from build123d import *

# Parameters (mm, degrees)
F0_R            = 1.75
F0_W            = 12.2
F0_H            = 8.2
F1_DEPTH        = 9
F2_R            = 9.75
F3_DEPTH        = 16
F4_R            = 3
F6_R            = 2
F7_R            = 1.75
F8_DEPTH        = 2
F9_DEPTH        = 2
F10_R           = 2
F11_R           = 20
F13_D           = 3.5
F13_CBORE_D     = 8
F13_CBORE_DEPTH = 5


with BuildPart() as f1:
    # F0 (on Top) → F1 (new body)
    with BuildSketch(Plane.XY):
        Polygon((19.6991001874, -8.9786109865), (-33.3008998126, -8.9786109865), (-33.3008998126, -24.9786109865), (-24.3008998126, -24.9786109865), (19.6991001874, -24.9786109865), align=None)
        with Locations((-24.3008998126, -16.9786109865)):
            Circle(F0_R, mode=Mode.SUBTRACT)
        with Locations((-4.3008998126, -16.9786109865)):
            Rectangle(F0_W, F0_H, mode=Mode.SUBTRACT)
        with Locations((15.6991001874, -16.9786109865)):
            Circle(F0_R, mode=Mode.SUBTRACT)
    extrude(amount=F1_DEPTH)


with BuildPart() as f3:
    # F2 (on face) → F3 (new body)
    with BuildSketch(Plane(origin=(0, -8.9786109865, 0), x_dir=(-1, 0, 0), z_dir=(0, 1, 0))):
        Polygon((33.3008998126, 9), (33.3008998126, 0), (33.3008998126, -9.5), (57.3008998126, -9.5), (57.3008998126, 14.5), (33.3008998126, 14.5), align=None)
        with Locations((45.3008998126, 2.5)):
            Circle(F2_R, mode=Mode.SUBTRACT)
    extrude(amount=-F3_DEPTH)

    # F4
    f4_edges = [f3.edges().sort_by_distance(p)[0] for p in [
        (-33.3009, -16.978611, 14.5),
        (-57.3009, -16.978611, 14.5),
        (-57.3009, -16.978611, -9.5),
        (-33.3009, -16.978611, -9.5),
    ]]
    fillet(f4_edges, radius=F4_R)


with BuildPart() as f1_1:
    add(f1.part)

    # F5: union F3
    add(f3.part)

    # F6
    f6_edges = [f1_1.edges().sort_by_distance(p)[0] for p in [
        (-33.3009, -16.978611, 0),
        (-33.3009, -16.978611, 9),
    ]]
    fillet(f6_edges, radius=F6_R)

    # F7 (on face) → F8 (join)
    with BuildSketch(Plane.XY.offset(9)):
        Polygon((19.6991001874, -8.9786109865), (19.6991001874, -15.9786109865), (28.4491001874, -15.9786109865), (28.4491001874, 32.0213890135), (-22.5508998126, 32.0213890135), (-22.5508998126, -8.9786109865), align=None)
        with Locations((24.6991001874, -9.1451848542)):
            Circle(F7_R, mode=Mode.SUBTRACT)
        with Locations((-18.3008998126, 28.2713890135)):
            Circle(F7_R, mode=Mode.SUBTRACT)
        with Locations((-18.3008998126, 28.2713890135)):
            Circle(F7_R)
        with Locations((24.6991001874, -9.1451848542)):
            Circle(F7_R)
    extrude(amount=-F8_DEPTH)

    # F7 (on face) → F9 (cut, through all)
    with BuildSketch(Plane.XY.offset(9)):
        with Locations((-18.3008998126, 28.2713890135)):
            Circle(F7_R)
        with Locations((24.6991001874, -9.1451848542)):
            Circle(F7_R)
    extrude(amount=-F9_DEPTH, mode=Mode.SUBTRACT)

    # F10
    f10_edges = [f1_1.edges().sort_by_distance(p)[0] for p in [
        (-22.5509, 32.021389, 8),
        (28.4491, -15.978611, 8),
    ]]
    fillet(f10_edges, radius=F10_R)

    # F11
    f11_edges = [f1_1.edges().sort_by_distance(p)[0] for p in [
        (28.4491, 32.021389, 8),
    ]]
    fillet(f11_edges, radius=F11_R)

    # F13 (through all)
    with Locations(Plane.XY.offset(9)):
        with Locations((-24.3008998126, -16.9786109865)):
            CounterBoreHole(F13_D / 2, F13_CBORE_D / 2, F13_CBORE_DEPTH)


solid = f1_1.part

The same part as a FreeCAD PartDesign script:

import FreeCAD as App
import Part
import Sketcher


def edges_at(feature, points):
    """Names of the edges that pass closest to the given points."""
    edges = feature.Shape.Edges
    near = lambda p: min(range(len(edges)), key=lambda i: edges[i].distToShape(Part.Vertex(*p))[0])
    return sorted({f"Edge{near(p) + 1}" for p in points})

doc = App.newDocument("Part")
params = doc.addObject("Spreadsheet::Sheet", "Params")
for row, (alias, value) in enumerate([
    ("sketch1_diameter", "3.5 mm"),
    ("sketch1_width", "53 mm"),
    ("sketch1_height", "16 mm"),
    ("sketch1_width2", "12.2 mm"),
    ("sketch1_height2", "8.2 mm"),
    ("pad1_length", "9 mm"),
    ("sketch2_diameter", "19.5 mm"),
    ("sketch2_width", "24 mm"),
    ("pad2_length", "16 mm"),
    ("fillet_radius", "3 mm"),
    ("fillet2_radius", "2 mm"),
    ("sketch3_width", "51 mm"),
    ("sketch3_height", "7 mm"),
    ("sketch3_height2", "48 mm"),
    ("sketch3_width2", "8.75 mm"),
    ("pad3_length", "2 mm"),
    ("sketch4_diameter", "3.5 mm"),
    ("fillet3_radius", "2 mm"),
    ("fillet4_radius", "20 mm"),
    ("sketch5_diameter", "3.5 mm"),
    ("hole_diameter", "3.5 mm"),
    ("hole_cbore_diameter", "8 mm"),
    ("hole_cbore_depth", "5 mm"),
], start=1):
    params.set(f"A{row}", alias)
    params.set(f"B{row}", "=" + value)
    params.setAlias(f"B{row}", alias)

body = doc.addObject("PartDesign::Body", "Body")

sketch1 = body.newObject("Sketcher::SketchObject", "Sketch")
sketch1.AttachmentSupport = (doc.getObject("XY_Plane"), [""])
sketch1.MapMode = "FlatFace"
sketch1.addGeometry([
    Part.LineSegment(App.Vector(19.6991, -8.978611, 0), App.Vector(-33.3009, -8.978611, 0)),
    Part.LineSegment(App.Vector(-33.3009, -8.978611, 0), App.Vector(-33.3009, -24.978611, 0)),
    Part.LineSegment(App.Vector(-33.3009, -24.978611, 0), App.Vector(19.6991, -24.978611, 0)),
    Part.LineSegment(App.Vector(19.6991, -24.978611, 0), App.Vector(19.6991, -8.978611, 0)),
    Part.Circle(App.Vector(-24.3009, -16.978611, 0), App.Vector(0, 0, 1), 1.75),
    Part.LineSegment(App.Vector(1.7991, -21.078611, 0), App.Vector(-10.4009, -21.078611, 0)),
    Part.LineSegment(App.Vector(-10.4009, -21.078611, 0), App.Vector(-10.4009, -12.878611, 0)),
    Part.LineSegment(App.Vector(-10.4009, -12.878611, 0), App.Vector(1.7991, -12.878611, 0)),
    Part.LineSegment(App.Vector(1.7991, -12.878611, 0), App.Vector(1.7991, -21.078611, 0)),
    Part.Circle(App.Vector(15.6991, -16.978611, 0), App.Vector(0, 0, 1), 1.75),
], False)
sketch1.addConstraint([
    Sketcher.Constraint("Coincident", 0, 2, 1, 1),
    Sketcher.Constraint("Coincident", 1, 2, 2, 1),
    Sketcher.Constraint("Coincident", 2, 2, 3, 1),
    Sketcher.Constraint("Coincident", 3, 2, 0, 1),
    Sketcher.Constraint("Coincident", 5, 2, 6, 1),
    Sketcher.Constraint("Coincident", 6, 2, 7, 1),
    Sketcher.Constraint("Coincident", 7, 2, 8, 1),
    Sketcher.Constraint("Coincident", 8, 2, 5, 1),
    Sketcher.Constraint("Horizontal", 0),
    Sketcher.Constraint("Vertical", 1),
    Sketcher.Constraint("Horizontal", 2),
    Sketcher.Constraint("Vertical", 3),
    Sketcher.Constraint("Horizontal", 5),
    Sketcher.Constraint("Vertical", 6),
    Sketcher.Constraint("Horizontal", 7),
    Sketcher.Constraint("Vertical", 8),
    Sketcher.Constraint("Equal", 4, 9),
    Sketcher.Constraint("Horizontal", 4, 3, 9, 3),
    Sketcher.Constraint("Diameter", 4, 3.5),
    Sketcher.Constraint("DistanceX", 0, 2, 0, 1, 53.0),
    Sketcher.Constraint("DistanceY", 1, 2, 1, 1, 16.0),
    Sketcher.Constraint("DistanceX", 5, 2, 5, 1, 12.2),
    Sketcher.Constraint("DistanceY", 6, 1, 6, 2, 8.2),
    Sketcher.Constraint("DistanceX", 4, 3, 9, 3, 40.0),
    Sketcher.Constraint("DistanceX", 0, 2, 4, 3, 9.0),
    Sketcher.Constraint("DistanceY", 4, 3, 0, 2, 8.0),
    Sketcher.Constraint("DistanceX", 4, 3, 5, 2, 13.9),
    Sketcher.Constraint("DistanceY", 5, 2, 4, 3, 4.1),
    Sketcher.Constraint("DistanceX", 4, 3, -1, 1, 24.3009),
    Sketcher.Constraint("DistanceY", 4, 3, -1, 1, 16.978611),
])
sketch1.setExpression("Constraints[18]", "Params.sketch1_diameter")
sketch1.setExpression("Constraints[19]", "Params.sketch1_width")
sketch1.setExpression("Constraints[20]", "Params.sketch1_height")
sketch1.setExpression("Constraints[21]", "Params.sketch1_width2")
sketch1.setExpression("Constraints[22]", "Params.sketch1_height2")
pad1 = body.newObject("PartDesign::Pad", "Pad")
pad1.Profile = sketch1
pad1.setExpression("Length", "Params.pad1_length")
body2 = doc.addObject("PartDesign::Body", "Body001")

sketch2 = body2.newObject("Sketcher::SketchObject", "Sketch001")
sketch2.AttachmentSupport = (doc.getObject("XZ_Plane001"), [""])
sketch2.MapMode = "FlatFace"
sketch2.AttachmentOffset = App.Placement(App.Vector(0, 0, 8.978611), App.Rotation())
sketch2.addGeometry([
    Part.LineSegment(App.Vector(-33.3009, -9.5, 0), App.Vector(-57.3009, -9.5, 0)),
    Part.LineSegment(App.Vector(-57.3009, -9.5, 0), App.Vector(-57.3009, 14.5, 0)),
    Part.LineSegment(App.Vector(-57.3009, 14.5, 0), App.Vector(-33.3009, 14.5, 0)),
    Part.LineSegment(App.Vector(-33.3009, 14.5, 0), App.Vector(-33.3009, -9.5, 0)),
    Part.Circle(App.Vector(-45.3009, 2.5, 0), App.Vector(0, 0, 1), 9.75),
], False)
sketch2.addConstraint([
    Sketcher.Constraint("Coincident", 0, 2, 1, 1),
    Sketcher.Constraint("Coincident", 1, 2, 2, 1),
    Sketcher.Constraint("Coincident", 2, 2, 3, 1),
    Sketcher.Constraint("Coincident", 3, 2, 0, 1),
    Sketcher.Constraint("Horizontal", 0),
    Sketcher.Constraint("Vertical", 1),
    Sketcher.Constraint("Horizontal", 2),
    Sketcher.Constraint("Vertical", 3),
    Sketcher.Constraint("Equal", 2, 1),
    Sketcher.Constraint("Diameter", 4, 19.5),
    Sketcher.Constraint("DistanceX", 0, 2, 0, 1, 24.0),
    Sketcher.Constraint("DistanceX", 0, 2, 4, 3, 12.0),
    Sketcher.Constraint("DistanceY", 0, 2, 4, 3, 12.0),
    Sketcher.Constraint("DistanceY", -1, 1, 4, 3, 2.5),
    Sketcher.Constraint("DistanceX", 4, 3, -1, 1, 45.3009),
])
sketch2.setExpression("Constraints[9]", "Params.sketch2_diameter")
sketch2.setExpression("Constraints[10]", "Params.sketch2_width")
pad2 = body2.newObject("PartDesign::Pad", "Pad001")
pad2.Profile = sketch2
pad2.setExpression("Length", "Params.pad2_length")
doc.recompute()

fillet = body2.newObject("PartDesign::Fillet", "Fillet")
fillet.Base = (pad2, edges_at(pad2, [
    (-33.301, -16.979, 14.5),
    (-57.301, -16.979, 14.5),
    (-57.301, -16.979, -9.5),
    (-33.301, -16.979, -9.5),
]))
fillet.setExpression("Radius", "Params.fillet_radius")
doc.recompute()

boolean = body.newObject("PartDesign::Boolean", "Boolean")
boolean.Type = "Fuse"
boolean.addObjects([body2])
doc.recompute()

fillet2 = body.newObject("PartDesign::Fillet", "Fillet001")
fillet2.Base = (boolean, edges_at(boolean, [(-33.301, -16.979, 0), (-33.301, -16.979, 9)]))
fillet2.setExpression("Radius", "Params.fillet2_radius")

sketch3 = body.newObject("Sketcher::SketchObject", "Sketch002")
sketch3.AttachmentSupport = (doc.getObject("XY_Plane"), [""])
sketch3.MapMode = "FlatFace"
sketch3.AttachmentOffset = App.Placement(App.Vector(0, 0, 9), App.Rotation())
sketch3.addGeometry([
    Part.LineSegment(App.Vector(19.6991, -8.978611, 0), App.Vector(19.6991, -15.978611, 0)),
    Part.LineSegment(App.Vector(19.6991, -15.978611, 0), App.Vector(28.4491, -15.978611, 0)),
    Part.LineSegment(App.Vector(28.4491, -15.978611, 0), App.Vector(28.4491, 32.021389, 0)),
    Part.LineSegment(App.Vector(28.4491, 32.021389, 0), App.Vector(-22.5509, 32.021389, 0)),
    Part.LineSegment(App.Vector(-22.5509, 32.021389, 0), App.Vector(-22.5509, -8.978611, 0)),
    Part.LineSegment(App.Vector(-22.5509, -8.978611, 0), App.Vector(19.6991, -8.978611, 0)),
], False)
sketch3.addConstraint([
    Sketcher.Constraint("Coincident", 0, 2, 1, 1),
    Sketcher.Constraint("Coincident", 1, 2, 2, 1),
    Sketcher.Constraint("Coincident", 2, 2, 3, 1),
    Sketcher.Constraint("Coincident", 3, 2, 4, 1),
    Sketcher.Constraint("Coincident", 4, 2, 5, 1),
    Sketcher.Constraint("Coincident", 5, 2, 0, 1),
    Sketcher.Constraint("Vertical", 0),
    Sketcher.Constraint("Horizontal", 1),
    Sketcher.Constraint("Vertical", 2),
    Sketcher.Constraint("Horizontal", 3),
    Sketcher.Constraint("Vertical", 4),
    Sketcher.Constraint("Horizontal", 5),
    Sketcher.Constraint("DistanceX", 3, 2, 3, 1, 51.0),
    Sketcher.Constraint("DistanceY", 0, 2, 0, 1, 7.0),
    Sketcher.Constraint("DistanceY", 2, 1, 2, 2, 48.0),
    Sketcher.Constraint("DistanceX", 1, 1, 1, 2, 8.75),
    Sketcher.Constraint("DistanceX", -1, 1, 0, 2, 19.6991),
    Sketcher.Constraint("DistanceY", 0, 2, -1, 1, 15.978611),
])
sketch3.setExpression("Constraints[12]", "Params.sketch3_width")
sketch3.setExpression("Constraints[13]", "Params.sketch3_height")
sketch3.setExpression("Constraints[14]", "Params.sketch3_height2")
sketch3.setExpression("Constraints[15]", "Params.sketch3_width2")
pad3 = body.newObject("PartDesign::Pad", "Pad002")
pad3.Profile = sketch3
pad3.setExpression("Length", "Params.pad3_length")
pad3.Reversed = True

sketch4 = body.newObject("Sketcher::SketchObject", "Sketch003")
sketch4.AttachmentSupport = (doc.getObject("XY_Plane"), [""])
sketch4.MapMode = "FlatFace"
sketch4.AttachmentOffset = App.Placement(App.Vector(0, 0, 9), App.Rotation())
sketch4.addGeometry([
    Part.Circle(App.Vector(-18.3009, 28.271389, 0), App.Vector(0, 0, 1), 1.75),
    Part.Circle(App.Vector(24.6991, -9.145185, 0), App.Vector(0, 0, 1), 1.75),
], False)
sketch4.addConstraint([
    Sketcher.Constraint("Equal", 0, 1),
    Sketcher.Constraint("Diameter", 0, 3.5),
    Sketcher.Constraint("DistanceX", 0, 3, 1, 3, 43.0),
    Sketcher.Constraint("DistanceX", 0, 3, -1, 1, 18.3009),
    Sketcher.Constraint("DistanceY", -1, 1, 0, 3, 28.271389),
    Sketcher.Constraint("DistanceY", 1, 3, -1, 1, 9.145185),
])
sketch4.setExpression("Constraints[1]", "Params.sketch4_diameter")
pocket1 = body.newObject("PartDesign::Pocket", "Pocket")
pocket1.Profile = sketch4
pocket1.Type = "ThroughAll"
doc.recompute()

fillet3 = body.newObject("PartDesign::Fillet", "Fillet002")
fillet3.Base = (pocket1, edges_at(pocket1, [(-22.551, 32.021, 8), (28.449, -15.979, 8)]))
fillet3.setExpression("Radius", "Params.fillet3_radius")
doc.recompute()

fillet4 = body.newObject("PartDesign::Fillet", "Fillet003")
fillet4.Base = (fillet3, edges_at(fillet3, [(28.449, 32.021, 8)]))
fillet4.setExpression("Radius", "Params.fillet4_radius")

sketch5 = body.newObject("Sketcher::SketchObject", "Sketch004")
sketch5.AttachmentSupport = (doc.getObject("XY_Plane"), [""])
sketch5.MapMode = "FlatFace"
sketch5.AttachmentOffset = App.Placement(App.Vector(0, 0, 9), App.Rotation())
sketch5.addGeometry(Part.Circle(App.Vector(-24.3009, -16.978611, 0), App.Vector(0, 0, 1), 1.75), False)
sketch5.addConstraint([
    Sketcher.Constraint("Diameter", 0, 3.5),
    Sketcher.Constraint("DistanceX", 0, 3, -1, 1, 24.3009),
    Sketcher.Constraint("DistanceY", 0, 3, -1, 1, 16.978611),
])
sketch5.setExpression("Constraints[0]", "Params.sketch5_diameter")
doc.recompute()
hole = body.newObject("PartDesign::Hole", "Hole")
hole.Profile = sketch5
hole.ThreadType = "None"
hole.setExpression("Diameter", "Params.hole_diameter")
hole.DepthType = "ThroughAll"
hole.HoleCutType = "Counterbore"
hole.setExpression("HoleCutDiameter", "Params.hole_cbore_diameter")
hole.setExpression("HoleCutDepth", "Params.hole_cbore_depth")

doc.recompute()
